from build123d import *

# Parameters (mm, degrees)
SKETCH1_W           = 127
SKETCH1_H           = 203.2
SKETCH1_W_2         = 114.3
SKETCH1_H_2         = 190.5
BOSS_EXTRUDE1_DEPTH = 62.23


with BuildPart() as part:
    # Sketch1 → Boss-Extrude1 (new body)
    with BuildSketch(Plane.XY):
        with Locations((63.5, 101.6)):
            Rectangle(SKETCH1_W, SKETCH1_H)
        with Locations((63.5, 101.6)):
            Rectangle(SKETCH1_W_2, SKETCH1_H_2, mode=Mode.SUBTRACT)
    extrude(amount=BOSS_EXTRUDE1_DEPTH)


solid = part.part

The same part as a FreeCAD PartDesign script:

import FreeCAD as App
import Part
import Sketcher
from FreeCAD import Vector
Q = App.Units.Quantity

doc = App.newDocument("Part")
params = doc.addObject("Spreadsheet::Sheet", "Params")
for row, (alias, value) in enumerate([
    ("sketch1_width", "5 in"),
    ("sketch1_height", "8 in"),
    ("sketch1_width2", "4.5 in"),
    ("sketch1_height2", "7.5 in"),
    ("pad1_length", "2.45 in"),
], start=1):
    params.set(f"A{row}", alias)
    params.set(f"B{row}", "=" + value)
    params.setAlias(f"B{row}", alias)

body = doc.addObject("PartDesign::Body", "Body")

sketch1 = body.newObject("Sketcher::SketchObject", "Sketch")
sketch1.AttachmentSupport = (doc.getObject("XY_Plane"), [""])
sketch1.MapMode = "FlatFace"
sketch1.addGeometry([
    Part.LineSegment(Vector(0, 203, 0), Vector(0, 0, 0)),
    Part.LineSegment(Vector(0, 0, 0), Vector(127, 0, 0)),
    Part.LineSegment(Vector(127, 0, 0), Vector(127, 203, 0)),
    Part.LineSegment(Vector(127, 203, 0), Vector(0, 203, 0)),
    Part.LineSegment(Vector(121, 6, 0), Vector(6, 6, 0)),
    Part.LineSegment(Vector(6, 6, 0), Vector(6, 197, 0)),
    Part.LineSegment(Vector(6, 197, 0), Vector(121, 197, 0)),
    Part.LineSegment(Vector(121, 197, 0), Vector(121, 6, 0)),
], False)
sketch1.addConstraint([
    Sketcher.Constraint("Coincident", 0, 2, 1, 1),
    Sketcher.Constraint("Coincident", 1, 2, 2, 1),
    Sketcher.Constraint("Coincident", 2, 2, 3, 1),
    Sketcher.Constraint("Coincident", 3, 2, 0, 1),
    Sketcher.Constraint("Coincident", 4, 2, 5, 1),
    Sketcher.Constraint("Coincident", 5, 2, 6, 1),
    Sketcher.Constraint("Coincident", 6, 2, 7, 1),
    Sketcher.Constraint("Coincident", 7, 2, 4, 1),
    Sketcher.Constraint("Vertical", 0),
    Sketcher.Constraint("Horizontal", 1),
    Sketcher.Constraint("Vertical", 2),
    Sketcher.Constraint("Horizontal", 3),
    Sketcher.Constraint("Horizontal", 4),
    Sketcher.Constraint("Vertical", 5),
    Sketcher.Constraint("Horizontal", 6),
    Sketcher.Constraint("Vertical", 7),
    Sketcher.Constraint("Coincident", 0, 2, -1, 1),
    Sketcher.Constraint("DistanceX", 1, 1, 1, 2, Q("5 in")),
    Sketcher.Constraint("DistanceY", 0, 2, 0, 1, Q("8 in")),
    Sketcher.Constraint("DistanceX", 4, 2, 4, 1, Q("4.5 in")),
    Sketcher.Constraint("DistanceY", 5, 1, 5, 2, Q("7.5 in")),
    Sketcher.Constraint("DistanceX", -1, 1, 4, 2, Q("0.25 in")),
    Sketcher.Constraint("DistanceY", -1, 1, 4, 2, Q("0.25 in")),
])
sketch1.setExpression("Constraints[17]", "Params.sketch1_width")
sketch1.setExpression("Constraints[18]", "Params.sketch1_height")
sketch1.setExpression("Constraints[19]", "Params.sketch1_width2")
sketch1.setExpression("Constraints[20]", "Params.sketch1_height2")
pad1 = body.newObject("PartDesign::Pad", "Pad")
pad1.Profile = sketch1
pad1.setExpression("Length", "Params.pad1_length")

doc.recompute()
